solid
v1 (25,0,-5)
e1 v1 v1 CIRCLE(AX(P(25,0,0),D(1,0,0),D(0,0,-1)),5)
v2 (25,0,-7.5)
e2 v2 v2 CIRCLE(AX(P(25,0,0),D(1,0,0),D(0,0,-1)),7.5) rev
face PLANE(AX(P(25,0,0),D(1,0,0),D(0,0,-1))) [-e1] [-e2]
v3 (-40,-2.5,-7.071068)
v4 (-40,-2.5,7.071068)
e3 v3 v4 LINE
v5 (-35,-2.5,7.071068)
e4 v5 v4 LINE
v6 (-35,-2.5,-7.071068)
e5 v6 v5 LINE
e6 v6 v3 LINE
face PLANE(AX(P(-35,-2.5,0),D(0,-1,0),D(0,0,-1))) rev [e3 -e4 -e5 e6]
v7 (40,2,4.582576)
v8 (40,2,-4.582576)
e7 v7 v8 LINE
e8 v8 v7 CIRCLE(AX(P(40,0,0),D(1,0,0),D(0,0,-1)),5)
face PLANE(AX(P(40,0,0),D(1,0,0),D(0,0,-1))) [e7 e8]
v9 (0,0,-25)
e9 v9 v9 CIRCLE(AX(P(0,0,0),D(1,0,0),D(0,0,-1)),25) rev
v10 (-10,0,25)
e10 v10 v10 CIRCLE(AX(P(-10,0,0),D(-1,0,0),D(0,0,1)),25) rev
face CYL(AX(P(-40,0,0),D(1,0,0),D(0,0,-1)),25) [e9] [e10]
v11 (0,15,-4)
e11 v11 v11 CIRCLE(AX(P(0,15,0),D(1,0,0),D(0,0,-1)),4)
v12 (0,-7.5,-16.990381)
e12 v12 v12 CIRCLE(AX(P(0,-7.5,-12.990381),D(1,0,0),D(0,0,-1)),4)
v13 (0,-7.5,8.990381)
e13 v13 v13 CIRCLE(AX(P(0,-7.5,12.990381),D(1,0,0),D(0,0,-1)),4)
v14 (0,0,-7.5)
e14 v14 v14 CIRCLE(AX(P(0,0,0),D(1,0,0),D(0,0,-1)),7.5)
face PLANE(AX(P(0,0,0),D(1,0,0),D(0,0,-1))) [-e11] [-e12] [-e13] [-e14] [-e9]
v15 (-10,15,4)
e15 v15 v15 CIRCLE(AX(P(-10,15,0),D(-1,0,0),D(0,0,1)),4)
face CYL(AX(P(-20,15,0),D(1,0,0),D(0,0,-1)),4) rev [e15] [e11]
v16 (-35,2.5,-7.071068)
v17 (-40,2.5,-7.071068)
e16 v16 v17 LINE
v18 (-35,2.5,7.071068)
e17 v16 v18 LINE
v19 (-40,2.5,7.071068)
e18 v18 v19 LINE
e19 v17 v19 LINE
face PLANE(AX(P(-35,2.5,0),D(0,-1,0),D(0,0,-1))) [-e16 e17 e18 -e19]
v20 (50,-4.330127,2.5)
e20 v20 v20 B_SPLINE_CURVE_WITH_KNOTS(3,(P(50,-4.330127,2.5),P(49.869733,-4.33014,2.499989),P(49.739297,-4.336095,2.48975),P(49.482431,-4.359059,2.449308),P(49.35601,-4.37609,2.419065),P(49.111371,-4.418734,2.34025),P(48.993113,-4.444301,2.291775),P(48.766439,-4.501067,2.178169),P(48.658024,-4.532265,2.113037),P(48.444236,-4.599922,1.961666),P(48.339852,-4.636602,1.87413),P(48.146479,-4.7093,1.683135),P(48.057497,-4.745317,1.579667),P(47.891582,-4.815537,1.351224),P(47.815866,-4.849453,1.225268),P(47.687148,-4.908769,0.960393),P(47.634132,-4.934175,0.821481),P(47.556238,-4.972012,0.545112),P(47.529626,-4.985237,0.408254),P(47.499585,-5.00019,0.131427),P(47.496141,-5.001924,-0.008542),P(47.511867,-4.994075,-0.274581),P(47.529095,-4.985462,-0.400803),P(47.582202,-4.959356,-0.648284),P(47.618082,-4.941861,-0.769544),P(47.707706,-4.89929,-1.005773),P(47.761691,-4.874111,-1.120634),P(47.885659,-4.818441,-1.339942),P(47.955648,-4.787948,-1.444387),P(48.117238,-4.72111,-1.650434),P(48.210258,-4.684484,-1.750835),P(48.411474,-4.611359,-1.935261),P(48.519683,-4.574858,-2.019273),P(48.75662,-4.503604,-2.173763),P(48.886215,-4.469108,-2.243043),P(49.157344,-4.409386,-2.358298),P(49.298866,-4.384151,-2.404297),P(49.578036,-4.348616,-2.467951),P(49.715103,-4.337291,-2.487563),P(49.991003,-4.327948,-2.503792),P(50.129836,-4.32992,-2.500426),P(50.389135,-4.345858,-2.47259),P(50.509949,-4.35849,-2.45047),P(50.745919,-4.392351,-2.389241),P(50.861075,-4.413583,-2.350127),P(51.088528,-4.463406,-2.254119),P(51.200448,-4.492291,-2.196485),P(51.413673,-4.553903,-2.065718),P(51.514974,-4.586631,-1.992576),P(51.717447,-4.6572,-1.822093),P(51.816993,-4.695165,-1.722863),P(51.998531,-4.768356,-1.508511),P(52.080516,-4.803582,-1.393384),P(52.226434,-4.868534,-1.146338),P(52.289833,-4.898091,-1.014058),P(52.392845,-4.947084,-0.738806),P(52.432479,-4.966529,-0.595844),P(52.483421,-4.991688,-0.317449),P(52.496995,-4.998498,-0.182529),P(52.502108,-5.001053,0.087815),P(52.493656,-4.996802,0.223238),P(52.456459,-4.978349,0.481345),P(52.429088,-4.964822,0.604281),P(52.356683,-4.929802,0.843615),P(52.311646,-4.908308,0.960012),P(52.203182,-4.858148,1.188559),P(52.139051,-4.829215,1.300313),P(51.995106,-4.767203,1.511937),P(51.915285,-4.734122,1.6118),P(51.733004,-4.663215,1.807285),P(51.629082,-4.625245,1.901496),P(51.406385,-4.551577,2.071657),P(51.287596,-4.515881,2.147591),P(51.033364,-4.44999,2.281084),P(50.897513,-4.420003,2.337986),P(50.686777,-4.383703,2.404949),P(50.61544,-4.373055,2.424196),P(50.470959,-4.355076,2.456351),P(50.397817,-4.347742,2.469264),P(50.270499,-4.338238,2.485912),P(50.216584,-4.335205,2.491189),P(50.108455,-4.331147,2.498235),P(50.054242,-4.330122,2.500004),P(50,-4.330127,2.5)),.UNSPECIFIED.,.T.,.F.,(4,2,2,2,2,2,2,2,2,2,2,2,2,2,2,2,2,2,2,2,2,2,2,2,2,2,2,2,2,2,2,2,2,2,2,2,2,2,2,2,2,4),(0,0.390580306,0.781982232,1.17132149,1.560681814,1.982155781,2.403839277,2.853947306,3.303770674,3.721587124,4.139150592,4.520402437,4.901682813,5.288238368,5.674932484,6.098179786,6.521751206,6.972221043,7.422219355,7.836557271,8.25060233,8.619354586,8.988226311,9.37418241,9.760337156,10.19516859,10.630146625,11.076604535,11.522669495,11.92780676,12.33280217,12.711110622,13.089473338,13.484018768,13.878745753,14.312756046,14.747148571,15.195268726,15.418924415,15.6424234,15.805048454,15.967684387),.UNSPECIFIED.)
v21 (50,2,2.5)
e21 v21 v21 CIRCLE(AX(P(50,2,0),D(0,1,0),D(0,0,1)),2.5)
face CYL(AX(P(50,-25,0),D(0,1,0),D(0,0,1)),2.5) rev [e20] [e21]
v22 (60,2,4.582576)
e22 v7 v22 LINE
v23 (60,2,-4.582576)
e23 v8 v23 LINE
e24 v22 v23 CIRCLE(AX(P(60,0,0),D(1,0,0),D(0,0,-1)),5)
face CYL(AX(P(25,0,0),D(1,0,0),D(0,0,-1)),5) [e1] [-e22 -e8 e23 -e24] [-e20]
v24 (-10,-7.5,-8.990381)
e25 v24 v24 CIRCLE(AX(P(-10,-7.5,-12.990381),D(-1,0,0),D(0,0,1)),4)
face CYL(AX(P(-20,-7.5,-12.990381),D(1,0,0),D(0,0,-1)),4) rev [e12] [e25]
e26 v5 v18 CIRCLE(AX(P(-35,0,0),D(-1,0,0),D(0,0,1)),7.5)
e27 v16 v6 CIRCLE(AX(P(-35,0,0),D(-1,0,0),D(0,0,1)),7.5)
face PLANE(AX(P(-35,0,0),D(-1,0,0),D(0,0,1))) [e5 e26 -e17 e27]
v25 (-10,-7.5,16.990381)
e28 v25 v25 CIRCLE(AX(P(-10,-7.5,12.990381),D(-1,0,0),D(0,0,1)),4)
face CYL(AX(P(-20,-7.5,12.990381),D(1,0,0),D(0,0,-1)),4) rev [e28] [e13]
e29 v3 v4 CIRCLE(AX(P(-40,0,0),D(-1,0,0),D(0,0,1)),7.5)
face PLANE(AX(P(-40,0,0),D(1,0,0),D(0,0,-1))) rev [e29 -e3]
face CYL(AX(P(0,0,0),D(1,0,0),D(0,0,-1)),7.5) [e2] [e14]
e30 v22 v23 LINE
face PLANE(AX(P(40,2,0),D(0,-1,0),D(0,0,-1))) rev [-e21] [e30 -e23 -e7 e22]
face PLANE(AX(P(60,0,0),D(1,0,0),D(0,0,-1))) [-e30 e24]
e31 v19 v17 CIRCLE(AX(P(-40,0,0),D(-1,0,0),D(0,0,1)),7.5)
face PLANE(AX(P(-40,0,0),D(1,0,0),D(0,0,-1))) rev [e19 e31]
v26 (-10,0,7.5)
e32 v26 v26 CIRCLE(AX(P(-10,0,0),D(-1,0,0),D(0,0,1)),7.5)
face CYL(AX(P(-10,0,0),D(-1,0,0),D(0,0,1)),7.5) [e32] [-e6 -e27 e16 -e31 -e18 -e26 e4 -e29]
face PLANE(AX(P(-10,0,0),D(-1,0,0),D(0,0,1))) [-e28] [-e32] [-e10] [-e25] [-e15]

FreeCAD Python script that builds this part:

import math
import FreeCAD as App
import Part
import Sketcher
from FreeCAD import Vector
Q = App.Units.Quantity

doc = App.newDocument("Part")
body = doc.addObject("PartDesign::Body", "Body")

# Sketch on YZ plane
sketch1 = body.newObject("Sketcher::SketchObject", "Sketch")
sketch1.AttachmentSupport = (doc.getObject("YZ_Plane"), [""])
sketch1.MapMode = "FlatFace"
sketch1.addGeometry(Part.Circle(Vector(0, 0, 0), Vector(0, 0, 1), 25), False)
sketch1.addConstraint([
    Sketcher.Constraint("Coincident", 0, 3, -1, 1),
    Sketcher.Constraint("Diameter", 0, Q("50 mm")),
])
pad1 = body.newObject("PartDesign::Pad", "Pad")
pad1.Profile = sketch1
pad1.Type = "TwoLengths"
pad1.Length = 60
pad1.Length2 = 40

# Sketch on YZ plane
sketch2 = body.newObject("Sketcher::SketchObject", "Sketch001")
sketch2.AttachmentSupport = (doc.getObject("YZ_Plane"), [""])
sketch2.MapMode = "FlatFace"
sketch2.AttachmentOffset = App.Placement(Vector(0, 0, 60), App.Rotation())
sketch2.addGeometry([
    Part.LineSegment(Vector(38, 38, 0), Vector(-38, 38, 0)),  # 0
    Part.LineSegment(Vector(-38, 38, 0), Vector(-38, -38, 0)),  # 1
    Part.LineSegment(Vector(-38, -38, 0), Vector(38, -38, 0)),  # 2
    Part.LineSegment(Vector(38, -38, 0), Vector(38, 38, 0)),  # 3
    Part.Circle(Vector(0, 0, 0), Vector(0, 0, 1), 8),  # 4
], False)
sketch2.addConstraint([
    Sketcher.Constraint("Coincident", 0, 2, 1, 1),
    Sketcher.Constraint("Coincident", 1, 2, 2, 1),
    Sketcher.Constraint("Coincident", 2, 2, 3, 1),
    Sketcher.Constraint("Coincident", 3, 2, 0, 1),
    Sketcher.Constraint("Horizontal", 0),
    Sketcher.Constraint("Vertical", 1),
    Sketcher.Constraint("Horizontal", 2),
    Sketcher.Constraint("Vertical", 3),
    Sketcher.Constraint("Coincident", 4, 3, -1, 1),
    Sketcher.Constraint("Symmetric", 0, 2, 2, 2, -1, 1),
    Sketcher.Constraint("Equal", 2, 1),
    Sketcher.Constraint("Diameter", 4, Q("15 mm")),
    Sketcher.Constraint("DistanceX", 0, 2, 0, 1, Q("76.494 mm")),
])
pocket1 = body.newObject("PartDesign::Pocket", "Pocket")
pocket1.Profile = sketch2
pocket1.Length = 60

# Sketch on YZ plane
sketch3 = body.newObject("Sketcher::SketchObject", "Sketch002")
sketch3.AttachmentSupport = (doc.getObject("YZ_Plane"), [""])
sketch3.MapMode = "FlatFace"
sketch3.AttachmentOffset = App.Placement(Vector(0, 0, -40), App.Rotation())
sketch3.addGeometry([
    Part.LineSegment(Vector(38, -38, 0), Vector(-38, -38, 0)),  # 0
    Part.LineSegment(Vector(-38, -38, 0), Vector(-38, 38, 0)),  # 1
    Part.LineSegment(Vector(-38, 38, 0), Vector(38, 38, 0)),  # 2
    Part.LineSegment(Vector(38, 38, 0), Vector(38, -38, 0)),  # 3
    Part.Circle(Vector(0, 0, 0), Vector(0, 0, 1), 8),  # 4
], False)
sketch3.addConstraint([
    Sketcher.Constraint("Coincident", 0, 2, 1, 1),
    Sketcher.Constraint("Coincident", 1, 2, 2, 1),
    Sketcher.Constraint("Coincident", 2, 2, 3, 1),
    Sketcher.Constraint("Coincident", 3, 2, 0, 1),
    Sketcher.Constraint("Horizontal", 0),
    Sketcher.Constraint("Vertical", 1),
    Sketcher.Constraint("Horizontal", 2),
    Sketcher.Constraint("Vertical", 3),
    Sketcher.Constraint("Coincident", 4, 3, -1, 1),
    Sketcher.Constraint("Symmetric", 0, 2, 2, 2, -1, 1),
    Sketcher.Constraint("Equal", 2, 1),
    Sketcher.Constraint("Diameter", 4, Q("15 mm")),
    Sketcher.Constraint("DistanceX", 0, 2, 0, 1, Q("76.494 mm")),
])
pocket2 = body.newObject("PartDesign::Pocket", "Pocket001")
pocket2.Profile = sketch3
pocket2.Length = 30
pocket2.Reversed = True

# Sketch on YZ plane
sketch4 = body.newObject("Sketcher::SketchObject", "Sketch003")
sketch4.AttachmentSupport = (doc.getObject("YZ_Plane"), [""])
sketch4.MapMode = "FlatFace"
sketch4.AttachmentOffset = App.Placement(Vector(0, 0, 60), App.Rotation())
sketch4.addGeometry([
    Part.LineSegment(Vector(38, 38, 0), Vector(-38, 38, 0)),  # 0
    Part.LineSegment(Vector(-38, 38, 0), Vector(-38, -38, 0)),  # 1
    Part.LineSegment(Vector(-38, -38, 0), Vector(38, -38, 0)),  # 2
    Part.LineSegment(Vector(38, -38, 0), Vector(38, 38, 0)),  # 3
    Part.Circle(Vector(0, 0, 0), Vector(0, 0, 1), 5),  # 4
], False)
sketch4.addConstraint([
    Sketcher.Constraint("Coincident", 0, 2, 1, 1),
    Sketcher.Constraint("Coincident", 1, 2, 2, 1),
    Sketcher.Constraint("Coincident", 2, 2, 3, 1),
    Sketcher.Constraint("Coincident", 3, 2, 0, 1),
    Sketcher.Constraint("Horizontal", 0),
    Sketcher.Constraint("Vertical", 1),
    Sketcher.Constraint("Horizontal", 2),
    Sketcher.Constraint("Vertical", 3),
    Sketcher.Constraint("Coincident", 4, 3, -1, 1),
    Sketcher.Constraint("Symmetric", 0, 2, 2, 2, -1, 1),
    Sketcher.Constraint("Equal", 2, 1),
    Sketcher.Constraint("Diameter", 4, Q("10 mm")),
    Sketcher.Constraint("DistanceX", 0, 2, 0, 1, Q("76.494 mm")),
])
pocket3 = body.newObject("PartDesign::Pocket", "Pocket002")
pocket3.Profile = sketch4
pocket3.Length = 35

# Sketch on YZ plane
sketch5 = body.newObject("Sketcher::SketchObject", "Sketch004")
sketch5.AttachmentSupport = (doc.getObject("YZ_Plane"), [""])
sketch5.MapMode = "FlatFace"
sketch5.AttachmentOffset = App.Placement(Vector(0, 0, 60), App.Rotation())
sketch5.addGeometry([
    Part.LineSegment(Vector(2, 5, 0), Vector(2, -5, 0)),
    Part.ArcOfCircle(Part.Circle(Vector(0, 0, 0), Vector(0, 0, 1), 5), math.radians(-66), math.radians(66)),
], False)
sketch5.addConstraint([
    Sketcher.Constraint("Coincident", 0, 1, 1, 2),
    Sketcher.Constraint("Coincident", 1, 1, 0, 2),
    Sketcher.Constraint("Vertical", 0),
    Sketcher.Constraint("Coincident", 1, 3, -1, 1),
    Sketcher.Constraint("Radius", 1, Q("5 mm")),
    Sketcher.Constraint("DistanceX", -1, 1, 0, 1, Q("2 mm")),
])
pocket4 = body.newObject("PartDesign::Pocket", "Pocket003")
pocket4.Profile = sketch5
pocket4.Length = 20

# Sketch on XZ plane
sketch6 = body.newObject("Sketcher::SketchObject", "Sketch005")
sketch6.AttachmentSupport = (doc.getObject("XZ_Plane"), [""])
sketch6.MapMode = "FlatFace"
sketch6.AttachmentOffset = App.Placement(Vector(0, 0, -2), App.Rotation())
sketch6.addGeometry(Part.Circle(Vector(50, 0, 0), Vector(0, 0, 1), 2.5), False)
sketch6.addConstraint([
    Sketcher.Constraint("PointOnObject", 0, 3, -1),
    Sketcher.Constraint("Diameter", 0, Q("5 mm")),
    Sketcher.Constraint("DistanceX", -1, 1, 0, 3, Q("50 mm")),
])
pocket5 = body.newObject("PartDesign::Pocket", "Pocket004")
pocket5.Profile = sketch6
pocket5.Type = "ThroughAll"
pocket5.Reversed = True

# Sketch on YZ plane
sketch7 = body.newObject("Sketcher::SketchObject", "Sketch006")
sketch7.AttachmentSupport = (doc.getObject("YZ_Plane"), [""])
sketch7.MapMode = "FlatFace"
sketch7.addGeometry([
    Part.Circle(Vector(15, 0, 0), Vector(0, 0, 1), 4),
    Part.Circle(Vector(-7.5, -13, 0), Vector(0, 0, 1), 4),
    Part.Circle(Vector(-7.5, 13, 0), Vector(0, 0, 1), 4),
], False)
sketch7.addConstraint([
    Sketcher.Constraint("Equal", 0, 1),
    Sketcher.Constraint("Equal", 1, 2),
    Sketcher.Constraint("Symmetric", 1, 3, 2, 3, -1),
    Sketcher.Constraint("PointOnObject", 0, 3, -1),
    Sketcher.Constraint("Diameter", 0, Q("8 mm")),
    Sketcher.Constraint("DistanceX", -1, 1, 0, 3, Q("15 mm")),
    Sketcher.Constraint("DistanceX", 1, 3, -1, 1, Q("7.5 mm")),
    Sketcher.Constraint("DistanceY", 1, 3, -1, 1, Q("12.990381 mm")),
])
pocket6 = body.newObject("PartDesign::Pocket", "Pocket005")
pocket6.Profile = sketch7
pocket6.Length = 20

# Sketch on YZ plane
sketch8 = body.newObject("Sketcher::SketchObject", "Sketch007")
sketch8.AttachmentSupport = (doc.getObject("YZ_Plane"), [""])
sketch8.MapMode = "FlatFace"
sketch8.AttachmentOffset = App.Placement(Vector(0, 0, -40), App.Rotation())
sketch8.addGeometry([
    Part.LineSegment(Vector(2.5, 7.1, 0), Vector(2.5, -7.1, 0)),  # 0
    Part.ArcOfCircle(Part.Circle(Vector(0, 0, 0), Vector(0, 0, 1), 7.5), math.radians(-109), math.radians(-71)),  # 1
    Part.LineSegment(Vector(-2.5, -7.1, 0), Vector(-2.5, 7.1, 0)),  # 2
    Part.ArcOfCircle(Part.Circle(Vector(0, 0, 0), Vector(0, 0, 1), 7.5), math.radians(90), math.radians(109.47)),  # 3
    Part.ArcOfCircle(Part.Circle(Vector(0, 0, 0), Vector(0, 0, 1), 7.5), math.radians(70.53), math.radians(90)),  # 4
], False)
sketch8.addConstraint([
    Sketcher.Constraint("Coincident", 0, 2, 1, 2),
    Sketcher.Constraint("Coincident", 1, 1, 2, 1),
    Sketcher.Constraint("Coincident", 2, 2, 3, 2),
    Sketcher.Constraint("Tangent", 3, 1, 4, 2),
    Sketcher.Constraint("Coincident", 4, 1, 0, 1),
    Sketcher.Constraint("Vertical", 0),
    Sketcher.Constraint("Vertical", 2),
    Sketcher.Constraint("Coincident", 1, 3, -1, 1),
    Sketcher.Constraint("Coincident", 3, 3, -1, 1),
    Sketcher.Constraint("Equal", 1, 3),
    Sketcher.Constraint("Equal", 3, 4),
    Sketcher.Constraint("PointOnObject", 3, 1, -2),
    Sketcher.Constraint("Horizontal", 0, 2, 1, 1),
    Sketcher.Constraint("Radius", 1, Q("7.5 mm")),
    Sketcher.Constraint("DistanceX", 1, 1, 0, 2, Q("5 mm")),
])
pocket7 = body.newObject("PartDesign::Pocket", "Pocket006")
pocket7.Profile = sketch8
pocket7.Length = 5
pocket7.Reversed = True

doc.recompute()
